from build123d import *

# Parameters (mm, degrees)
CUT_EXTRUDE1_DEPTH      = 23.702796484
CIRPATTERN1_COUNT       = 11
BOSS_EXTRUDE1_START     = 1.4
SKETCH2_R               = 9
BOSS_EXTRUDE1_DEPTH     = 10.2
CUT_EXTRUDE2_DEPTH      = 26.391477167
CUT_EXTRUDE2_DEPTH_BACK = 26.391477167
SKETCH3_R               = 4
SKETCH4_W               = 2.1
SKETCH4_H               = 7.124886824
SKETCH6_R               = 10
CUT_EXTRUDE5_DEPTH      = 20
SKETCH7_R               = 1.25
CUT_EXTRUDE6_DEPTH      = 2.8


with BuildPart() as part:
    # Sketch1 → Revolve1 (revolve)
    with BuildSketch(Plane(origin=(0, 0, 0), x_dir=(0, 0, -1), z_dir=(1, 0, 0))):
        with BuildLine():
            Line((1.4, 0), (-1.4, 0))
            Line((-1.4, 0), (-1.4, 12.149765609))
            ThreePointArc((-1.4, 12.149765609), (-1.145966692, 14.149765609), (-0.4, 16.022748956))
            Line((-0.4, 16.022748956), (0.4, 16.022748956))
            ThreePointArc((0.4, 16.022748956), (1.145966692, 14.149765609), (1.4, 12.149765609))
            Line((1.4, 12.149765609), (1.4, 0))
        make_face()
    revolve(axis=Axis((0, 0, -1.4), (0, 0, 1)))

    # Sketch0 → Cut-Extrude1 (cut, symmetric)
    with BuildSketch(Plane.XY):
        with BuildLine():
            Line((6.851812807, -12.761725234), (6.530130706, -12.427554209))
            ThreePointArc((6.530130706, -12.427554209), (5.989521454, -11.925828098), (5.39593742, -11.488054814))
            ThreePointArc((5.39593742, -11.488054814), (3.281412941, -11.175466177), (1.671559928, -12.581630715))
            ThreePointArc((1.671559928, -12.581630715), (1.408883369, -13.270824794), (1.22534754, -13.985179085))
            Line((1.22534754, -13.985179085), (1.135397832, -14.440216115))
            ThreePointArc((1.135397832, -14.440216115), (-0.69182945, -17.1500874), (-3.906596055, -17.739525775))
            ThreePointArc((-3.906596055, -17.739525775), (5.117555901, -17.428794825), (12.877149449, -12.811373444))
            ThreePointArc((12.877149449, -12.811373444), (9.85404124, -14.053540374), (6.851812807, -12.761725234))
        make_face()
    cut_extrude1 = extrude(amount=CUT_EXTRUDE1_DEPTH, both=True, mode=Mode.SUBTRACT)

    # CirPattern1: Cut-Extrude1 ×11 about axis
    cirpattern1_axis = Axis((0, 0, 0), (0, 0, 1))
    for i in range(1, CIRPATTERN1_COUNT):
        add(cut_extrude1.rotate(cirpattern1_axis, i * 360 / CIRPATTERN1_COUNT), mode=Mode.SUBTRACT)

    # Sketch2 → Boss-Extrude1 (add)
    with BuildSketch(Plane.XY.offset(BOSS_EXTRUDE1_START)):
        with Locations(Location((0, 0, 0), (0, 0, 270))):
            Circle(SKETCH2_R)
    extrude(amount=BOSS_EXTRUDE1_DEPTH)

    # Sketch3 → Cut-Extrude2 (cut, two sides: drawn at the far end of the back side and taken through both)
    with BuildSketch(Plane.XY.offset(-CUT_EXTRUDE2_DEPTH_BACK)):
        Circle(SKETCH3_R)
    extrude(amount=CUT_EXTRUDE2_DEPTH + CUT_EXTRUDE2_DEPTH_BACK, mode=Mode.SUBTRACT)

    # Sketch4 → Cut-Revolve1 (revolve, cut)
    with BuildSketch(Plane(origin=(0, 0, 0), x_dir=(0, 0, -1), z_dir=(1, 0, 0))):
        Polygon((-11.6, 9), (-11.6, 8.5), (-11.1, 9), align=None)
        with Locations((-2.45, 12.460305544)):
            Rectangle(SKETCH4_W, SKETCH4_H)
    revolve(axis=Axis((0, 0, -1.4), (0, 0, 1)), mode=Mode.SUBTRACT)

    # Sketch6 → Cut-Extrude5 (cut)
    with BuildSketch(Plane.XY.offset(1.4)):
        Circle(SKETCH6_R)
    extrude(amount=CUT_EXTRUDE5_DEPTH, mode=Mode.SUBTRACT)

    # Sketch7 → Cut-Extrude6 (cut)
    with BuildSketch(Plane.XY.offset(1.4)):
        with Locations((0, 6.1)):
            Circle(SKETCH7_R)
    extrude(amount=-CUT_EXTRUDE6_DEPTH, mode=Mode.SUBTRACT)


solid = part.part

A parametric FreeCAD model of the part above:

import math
import FreeCAD as App
import Part
import Sketcher

V = App.Vector
Q = App.Units.Quantity

doc = App.newDocument("Part")
body = doc.addObject("PartDesign::Body", "Body")

# Sketch on YZ plane
sketch1 = body.newObject("Sketcher::SketchObject", "Sketch")
sketch1.AttachmentSupport = (doc.getObject("YZ_Plane"), [""])
sketch1.MapMode = "FlatFace"
sketch1.addGeometry(Part.LineSegment(V(0, 1.4, 0), V(0, -1.4, 0)), False)
sketch1.addGeometry(Part.LineSegment(V(0, -1.4, 0), V(12.1, -1.4, 0)), False)
sketch1.addGeometry(Part.ArcOfCircle(Part.Circle(V(12.1, 6.6, 0), V(0, 0, 1), 8), math.radians(-90), math.radians(-61)), False)
sketch1.addGeometry(Part.LineSegment(V(16, -0.4, 0), V(16, 0.4, 0)), False)
sketch1.addGeometry(Part.ArcOfCircle(Part.Circle(V(12.1, -6.6, 0), V(0, 0, 1), 8), math.radians(61), math.radians(90)), False)
sketch1.addGeometry(Part.LineSegment(V(12.1, 1.4, 0), V(0, 1.4, 0)), False)
sketch1.addConstraint(Sketcher.Constraint("Coincident", 0, 2, 1, 1))
sketch1.addConstraint(Sketcher.Constraint("Tangent", 1, 2, 2, 1))
sketch1.addConstraint(Sketcher.Constraint("Coincident", 2, 2, 3, 1))
sketch1.addConstraint(Sketcher.Constraint("Coincident", 3, 2, 4, 1))
sketch1.addConstraint(Sketcher.Constraint("Tangent", 4, 2, 5, 1))
sketch1.addConstraint(Sketcher.Constraint("Coincident", 5, 2, 0, 1))
sketch1.addConstraint(Sketcher.Constraint("Vertical", 0))
sketch1.addConstraint(Sketcher.Constraint("Horizontal", 1))
sketch1.addConstraint(Sketcher.Constraint("Vertical", 3))
sketch1.addConstraint(Sketcher.Constraint("Horizontal", 5))
sketch1.addConstraint(Sketcher.Constraint("Equal", 2, 4))
sketch1.addConstraint(Sketcher.Constraint("Symmetric", 0, 2, 5, 2, -1, 1))
sketch1.addConstraint(Sketcher.Constraint("Vertical", 2, 3, 4, 3))
sketch1.addConstraint(Sketcher.Constraint("Radius", 2, Q("8 mm")))
sketch1.addConstraint(Sketcher.Constraint("DistanceY", 0, 2, 0, 1, Q("2.8 mm")))
sketch1.addConstraint(Sketcher.Constraint("DistanceY", 3, 1, 3, 2, Q("0.8 mm")))
sketch1.addConstraint(Sketcher.Constraint("DistanceX", 1, 1, 1, 2, Q("12.149766 mm")))
revolution = body.newObject("PartDesign::Revolution", "Revolution")
revolution.Profile = sketch1
revolution.ReferenceAxis = (sketch1, ["V_Axis"])
revolution.Angle = 360

# Sketch on XY plane
sketch2 = body.newObject("Sketcher::SketchObject", "Sketch001")
sketch2.AttachmentSupport = (doc.getObject("XY_Plane"), [""])
sketch2.MapMode = "FlatFace"
sketch2.addGeometry(Part.LineSegment(V(6.85, -12.76, 0), V(6.53, -12.43, 0)), False)
sketch2.addGeometry(Part.ArcOfCircle(Part.Circle(V(1.81, -16.97, 0), V(0, 0, 1), 6.55), math.radians(43.91), math.radians(56.82)), False)
sketch2.addGeometry(Part.ArcOfCircle(Part.Circle(V(4, -13.62, 0), V(0, 0, 1), 2.55), math.radians(57), math.radians(156)), False)
sketch2.addGeometry(Part.ArcOfCircle(Part.Circle(V(7.65, -15.26, 0), V(0, 0, 1), 6.55), math.radians(155.91), math.radians(168.82)), False)
sketch2.addGeometry(Part.LineSegment(V(1.23, -13.99, 0), V(1.14, -14.44, 0)), False)
sketch2.addGeometry(Part.ArcOfCircle(Part.Circle(V(-3, -13.62, 0), V(0, 0, 1), 4.22), math.radians(-102), math.radians(-11)), False)
sketch2.addGeometry(Part.ArcOfCircle(Part.Circle(V(0, 0, 0), V(0, 0, 1), 18.16), math.radians(-102), math.radians(-45)), False)
sketch2.addGeometry(Part.ArcOfCircle(Part.Circle(V(9.89, -9.84, 0), V(0, 0, 1), 4.22), math.radians(-136), math.radians(-45)), False)
sketch2.addConstraint(Sketcher.Constraint("Tangent", 0, 2, 1, 1))
sketch2.addConstraint(Sketcher.Constraint("Tangent", 1, 2, 2, 1))
sketch2.addConstraint(Sketcher.Constraint("Tangent", 2, 2, 3, 1))
sketch2.addConstraint(Sketcher.Constraint("Tangent", 3, 2, 4, 1))
sketch2.addConstraint(Sketcher.Constraint("Tangent", 4, 2, 5, 2))
sketch2.addConstraint(Sketcher.Constraint("Tangent", 5, 1, 6, 1))
sketch2.addConstraint(Sketcher.Constraint("Tangent", 6, 2, 7, 2))
sketch2.addConstraint(Sketcher.Constraint("Tangent", 7, 1, 0, 1))
sketch2.addConstraint(Sketcher.Constraint("Coincident", 6, 3, -1, 1))
sketch2.addConstraint(Sketcher.Constraint("Equal", 1, 3))
sketch2.addConstraint(Sketcher.Constraint("Equal", 5, 7))
sketch2.addConstraint(Sketcher.Constraint("Horizontal", 2, 3, 5, 3))
sketch2.addConstraint(Sketcher.Constraint("Equal", 0, 4))
sketch2.addConstraint(Sketcher.Constraint("DistanceX", -1, 1, 2, 3, Q("4 mm")))
sketch2.addConstraint(Sketcher.Constraint("DistanceX", 5, 3, -1, 1, Q("3 mm")))
sketch2.addConstraint(Sketcher.Constraint("Radius", 1, Q("6.5506 mm")))
sketch2.addConstraint(Sketcher.Constraint("Radius", 2, Q("2.5506 mm")))
sketch2.addConstraint(Sketcher.Constraint("Radius", 5, Q("4.21542 mm")))
sketch2.addConstraint(Sketcher.Constraint("Radius", 6, Q("18.164588 mm")))
sketch2.addConstraint(Sketcher.Constraint("DistanceY", 1, 3, -1, 1, Q("16.970501 mm")))
sketch2.addConstraint(Sketcher.Constraint("DistanceY", 0, 2, 1, 2, Q("0.939499 mm")))
pocket1 = body.newObject("PartDesign::Pocket", "Pocket")
pocket1.Profile = sketch2
pocket1.Length = 47.405593
pocket1.Midplane = True
doc.recompute()

polarpattern = body.newObject("PartDesign::PolarPattern", "PolarPattern")
polarpattern.Originals = [pocket1]
polarpattern.Axis = (doc.getObject("Z_Axis"), [""])
polarpattern.Angle = 360
polarpattern.Occurrences = 11
body.Tip = polarpattern

# Sketch on XY plane
sketch3 = body.newObject("Sketcher::SketchObject", "Sketch002")
sketch3.AttachmentSupport = (doc.getObject("XY_Plane"), [""])
sketch3.MapMode = "FlatFace"
sketch3.AttachmentOffset = App.Placement(V(0, 0, 1.4), App.Rotation())
sketch3.addGeometry(Part.Circle(V(0, 0, 0), V(0, 0, 1), 9), False)
sketch3.addConstraint(Sketcher.Constraint("Coincident", 0, 3, -1, 1))
sketch3.addConstraint(Sketcher.Constraint("Diameter", 0, Q("18 mm")))
pad1 = body.newObject("PartDesign::Pad", "Pad")
pad1.Profile = sketch3
pad1.Length = 10.2

# Sketch on XY plane
sketch4 = body.newObject("Sketcher::SketchObject", "Sketch003")
sketch4.AttachmentSupport = (doc.getObject("XY_Plane"), [""])
sketch4.MapMode = "FlatFace"
sketch4.addGeometry(Part.Circle(V(0, 0, 0), V(0, 0, 1), 4), False)
sketch4.addConstraint(Sketcher.Constraint("Coincident", 0, 3, -1, 1))
sketch4.addConstraint(Sketcher.Constraint("Diameter", 0, Q("8 mm")))
pocket2 = body.newObject("PartDesign::Pocket", "Pocket001")
pocket2.Profile = sketch4
pocket2.Type = "ThroughAll"
pocket2.Midplane = True

# Sketch on YZ plane
sketch5 = body.newObject("Sketcher::SketchObject", "Sketch004")
sketch5.AttachmentSupport = (doc.getObject("YZ_Plane"), [""])
sketch5.MapMode = "FlatFace"
sketch5.addGeometry(Part.LineSegment(V(9, 11.6, 0), V(8.5, 11.6, 0)), False)
sketch5.addGeometry(Part.LineSegment(V(8.5, 11.6, 0), V(9, 11.1, 0)), False)
sketch5.addGeometry(Part.LineSegment(V(9, 11.1, 0), V(9, 11.6, 0)), False)
sketch5.addGeometry(Part.LineSegment(V(16, 3.5, 0), V(8.9, 3.5, 0)), False)
sketch5.addGeometry(Part.LineSegment(V(8.9, 3.5, 0), V(8.9, 1.4, 0)), False)
sketch5.addGeometry(Part.LineSegment(V(8.9, 1.4, 0), V(16, 1.4, 0)), False)
sketch5.addGeometry(Part.LineSegment(V(16, 1.4, 0), V(16, 3.5, 0)), False)
sketch5.addConstraint(Sketcher.Constraint("Coincident", 0, 2, 1, 1))
sketch5.addConstraint(Sketcher.Constraint("Coincident", 1, 2, 2, 1))
sketch5.addConstraint(Sketcher.Constraint("Coincident", 2, 2, 0, 1))
sketch5.addConstraint(Sketcher.Constraint("Coincident", 3, 2, 4, 1))
sketch5.addConstraint(Sketcher.Constraint("Coincident", 4, 2, 5, 1))
sketch5.addConstraint(Sketcher.Constraint("Coincident", 5, 2, 6, 1))
sketch5.addConstraint(Sketcher.Constraint("Coincident", 6, 2, 3, 1))
sketch5.addConstraint(Sketcher.Constraint("Horizontal", 0))
sketch5.addConstraint(Sketcher.Constraint("Vertical", 2))
sketch5.addConstraint(Sketcher.Constraint("Horizontal", 3))
sketch5.addConstraint(Sketcher.Constraint("Vertical", 4))
sketch5.addConstraint(Sketcher.Constraint("Horizontal", 5))
sketch5.addConstraint(Sketcher.Constraint("Vertical", 6))
sketch5.addConstraint(Sketcher.Constraint("Equal", 0, 2))
sketch5.addConstraint(Sketcher.Constraint("DistanceX", 0, 2, 0, 1, Q("0.5 mm")))
sketch5.addConstraint(Sketcher.Constraint("DistanceY", 4, 2, 4, 1, Q("2.1 mm")))
sketch5.addConstraint(Sketcher.Constraint("DistanceX", -1, 1, 1, 2, Q("9 mm")))
sketch5.addConstraint(Sketcher.Constraint("DistanceY", -1, 1, 0, 2, Q("11.6 mm")))
sketch5.addConstraint(Sketcher.Constraint("DistanceY", -1, 1, 3, 2, Q("3.5 mm")))
sketch5.addConstraint(Sketcher.Constraint("DistanceX", 3, 2, 3, 1, Q("7.124887 mm")))
sketch5.addConstraint(Sketcher.Constraint("DistanceX", -1, 1, 5, 2, Q("16.022749 mm")))
groove = body.newObject("PartDesign::Groove", "Groove")
groove.Profile = sketch5
groove.ReferenceAxis = (sketch5, ["V_Axis"])
groove.Angle = 360

# Sketch on XY plane
sketch6 = body.newObject("Sketcher::SketchObject", "Sketch005")
sketch6.AttachmentSupport = (doc.getObject("XY_Plane"), [""])
sketch6.MapMode = "FlatFace"
sketch6.AttachmentOffset = App.Placement(V(0, 0, 1.4), App.Rotation())
sketch6.addGeometry(Part.Circle(V(0, 0, 0), V(0, 0, 1), 10), False)
sketch6.addConstraint(Sketcher.Constraint("Coincident", 0, 3, -1, 1))
sketch6.addConstraint(Sketcher.Constraint("Diameter", 0, Q("20 mm")))
pocket3 = body.newObject("PartDesign::Pocket", "Pocket002")
pocket3.Profile = sketch6
pocket3.Length = 20
pocket3.Reversed = True

# Sketch on XY plane
sketch7 = body.newObject("Sketcher::SketchObject", "Sketch006")
sketch7.AttachmentSupport = (doc.getObject("XY_Plane"), [""])
sketch7.MapMode = "FlatFace"
sketch7.AttachmentOffset = App.Placement(V(0, 0, 1.4), App.Rotation())
sketch7.addGeometry(Part.Circle(V(0, 6.1, 0), V(0, 0, 1), 1.2), False)
sketch7.addConstraint(Sketcher.Constraint("PointOnObject", 0, 3, -2))
sketch7.addConstraint(Sketcher.Constraint("Diameter", 0, Q("2.5 mm")))
sketch7.addConstraint(Sketcher.Constraint("DistanceY", -1, 1, 0, 3, Q("6.1 mm")))
pocket4 = body.newObject("PartDesign::Pocket", "Pocket003")
pocket4.Profile = sketch7
pocket4.Length = 2.8

doc.recompute()
